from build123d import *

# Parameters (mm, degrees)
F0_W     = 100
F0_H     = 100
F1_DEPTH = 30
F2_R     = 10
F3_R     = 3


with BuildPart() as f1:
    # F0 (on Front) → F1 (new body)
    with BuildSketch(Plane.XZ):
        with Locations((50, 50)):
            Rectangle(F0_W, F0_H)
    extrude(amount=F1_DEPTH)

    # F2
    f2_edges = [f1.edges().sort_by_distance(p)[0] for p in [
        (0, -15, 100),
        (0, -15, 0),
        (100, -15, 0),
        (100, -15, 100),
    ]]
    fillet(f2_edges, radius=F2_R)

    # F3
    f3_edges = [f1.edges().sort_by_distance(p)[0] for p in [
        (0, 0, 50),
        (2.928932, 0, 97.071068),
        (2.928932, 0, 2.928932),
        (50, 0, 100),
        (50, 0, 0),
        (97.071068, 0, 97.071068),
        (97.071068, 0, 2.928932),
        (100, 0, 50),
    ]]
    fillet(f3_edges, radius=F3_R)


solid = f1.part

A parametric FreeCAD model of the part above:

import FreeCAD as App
import Part
import Sketcher


def edges_at(feature, points):
    """Names of the edges that pass closest to the given points."""
    edges = feature.Shape.Edges
    near = lambda p: min(range(len(edges)), key=lambda i: edges[i].distToShape(Part.Vertex(*p))[0])
    return sorted({f"Edge{near(p) + 1}" for p in points})


def add_polygon(sketch, points):
    """Adds a closed chain of lines whose ends are joined by coincident constraints."""
    first, n = sketch.GeometryCount, len(points)
    for a, b in zip(points, points[1:] + points[:1]):
        sketch.addGeometry(Part.LineSegment(App.Vector(*a, 0), App.Vector(*b, 0)), False)
    for i in range(n):
        sketch.addConstraint(Sketcher.Constraint("Coincident", first + i, 2, first + (i + 1) % n, 1))

doc = App.newDocument("Part")
body = doc.addObject("PartDesign::Body", "Body")

sketch1 = doc.addObject("Sketcher::SketchObject", "Sketch")
body.addObject(sketch1)
sketch1.AttachmentSupport = (doc.XZ_Plane, [""])
sketch1.MapMode = "FlatFace"
add_polygon(sketch1, [(0, 100), (0, 0), (100, 0), (100, 100)])
sketch1.addConstraint(Sketcher.Constraint("Vertical", 0))
sketch1.addConstraint(Sketcher.Constraint("Horizontal", 1))
sketch1.addConstraint(Sketcher.Constraint("Vertical", 2))
sketch1.addConstraint(Sketcher.Constraint("Horizontal", 3))
sketch1.addConstraint(Sketcher.Constraint("Coincident", 0, 2, -1, 1))
sketch1.addConstraint(Sketcher.Constraint("Equal", 3, 0))
sketch1.addConstraint(Sketcher.Constraint("DistanceX", 1, 1, 1, 2, 100.0))
pad1 = doc.addObject("PartDesign::Pad", "Pad")
body.addObject(pad1)
pad1.Profile = sketch1
pad1.Length = 30
doc.recompute()

fillet = doc.addObject("PartDesign::Fillet", "Fillet")
body.addObject(fillet)
fillet.Base = (pad1, edges_at(pad1, [
    (0, -15, 100),
    (0, -15, 0),
    (100, -15, 0),
    (100, -15, 100),
]))
fillet.Radius = 10
doc.recompute()

fillet2 = doc.addObject("PartDesign::Fillet", "Fillet001")
body.addObject(fillet2)
fillet2.Base = (fillet, edges_at(fillet, [
    (0, 0, 50),
    (2.929, 0, 97.071),
    (2.929, 0, 2.929),
    (50, 0, 100),
    (50, 0, 0),
    (97.071, 0, 97.071),
    (97.071, 0, 2.929),
    (100, 0, 50),
]))
fillet2.Radius = 3

doc.recompute()
